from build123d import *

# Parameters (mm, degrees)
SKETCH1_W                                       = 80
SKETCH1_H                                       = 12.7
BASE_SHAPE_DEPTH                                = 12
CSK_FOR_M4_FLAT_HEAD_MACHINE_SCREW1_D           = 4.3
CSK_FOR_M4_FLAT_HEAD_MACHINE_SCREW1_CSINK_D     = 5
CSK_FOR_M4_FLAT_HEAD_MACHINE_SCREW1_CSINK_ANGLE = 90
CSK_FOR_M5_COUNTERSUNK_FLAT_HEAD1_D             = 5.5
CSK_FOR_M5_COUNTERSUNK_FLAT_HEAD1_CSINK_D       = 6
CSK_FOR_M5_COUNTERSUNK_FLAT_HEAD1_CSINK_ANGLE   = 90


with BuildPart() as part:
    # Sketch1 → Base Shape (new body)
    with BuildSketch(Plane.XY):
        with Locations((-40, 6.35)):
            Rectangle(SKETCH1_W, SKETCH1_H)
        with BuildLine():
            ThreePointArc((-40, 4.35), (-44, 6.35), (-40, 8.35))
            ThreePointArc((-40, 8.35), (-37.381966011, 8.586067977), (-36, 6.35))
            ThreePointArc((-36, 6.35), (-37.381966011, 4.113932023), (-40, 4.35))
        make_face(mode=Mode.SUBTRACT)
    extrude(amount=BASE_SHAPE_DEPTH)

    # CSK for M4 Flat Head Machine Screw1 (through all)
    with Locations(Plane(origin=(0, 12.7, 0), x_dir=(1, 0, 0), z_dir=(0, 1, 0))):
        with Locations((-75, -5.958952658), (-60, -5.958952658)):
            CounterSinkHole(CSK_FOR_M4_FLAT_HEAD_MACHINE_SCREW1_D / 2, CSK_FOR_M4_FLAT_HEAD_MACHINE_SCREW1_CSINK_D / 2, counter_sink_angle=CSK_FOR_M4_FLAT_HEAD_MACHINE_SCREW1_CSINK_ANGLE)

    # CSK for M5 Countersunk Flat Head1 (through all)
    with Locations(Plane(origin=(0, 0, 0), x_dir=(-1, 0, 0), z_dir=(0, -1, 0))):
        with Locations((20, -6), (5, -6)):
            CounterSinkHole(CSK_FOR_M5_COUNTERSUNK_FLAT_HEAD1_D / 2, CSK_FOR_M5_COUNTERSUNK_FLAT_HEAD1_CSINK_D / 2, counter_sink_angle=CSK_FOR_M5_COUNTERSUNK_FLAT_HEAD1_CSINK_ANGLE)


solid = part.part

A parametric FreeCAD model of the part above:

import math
import FreeCAD as App
import Part
import Sketcher

V = App.Vector
Q = App.Units.Quantity


def add_polygon(sketch, points):
    """Adds a closed chain of lines whose ends are joined by coincident constraints."""
    first, n = sketch.GeometryCount, len(points)
    for a, b in zip(points, points[1:] + points[:1]):
        sketch.addGeometry(Part.LineSegment(App.Vector(*a, 0), App.Vector(*b, 0)), False)
    for i in range(n):
        sketch.addConstraint(Sketcher.Constraint("Coincident", first + i, 2, first + (i + 1) % n, 1))

doc = App.newDocument("Part")
body = doc.addObject("PartDesign::Body", "Body")

sketch1 = body.newObject("Sketcher::SketchObject", "Sketch")
sketch1.AttachmentSupport = (doc.getObject("XY_Plane"), [""])
sketch1.MapMode = "FlatFace"
add_polygon(sketch1, [(-80, 12.7), (-80, 0), (0, 0), (0, 12.7)])
sketch1.addGeometry(Part.ArcOfCircle(Part.Circle(V(-38.5, 6.4, 0), V(0, 0, 1), 2.5), math.radians(-127), math.radians(0)), False)
sketch1.addGeometry(Part.ArcOfCircle(Part.Circle(V(-41.5, 6.3, 0), V(0, 0, 1), 2.5), math.radians(53), math.radians(307)), False)
sketch1.addGeometry(Part.ArcOfCircle(Part.Circle(V(-38.5, 6.3, 0), V(0, 0, 1), 2.5), math.radians(0), math.radians(127)), False)
sketch1.addConstraint([
    Sketcher.Constraint("Coincident", 4, 1, 5, 2),
    Sketcher.Constraint("Coincident", 5, 1, 6, 2),
    Sketcher.Constraint("Tangent", 6, 1, 4, 2),
    Sketcher.Constraint("Vertical", 0),
    Sketcher.Constraint("Horizontal", 1),
    Sketcher.Constraint("Vertical", 2),
    Sketcher.Constraint("Horizontal", 3),
    Sketcher.Constraint("Coincident", 1, 2, -1, 1),
    Sketcher.Constraint("Equal", 4, 5),
    Sketcher.Constraint("Equal", 5, 6),
    Sketcher.Constraint("Horizontal", 4, 3, 5, 3),
    Sketcher.Constraint("Horizontal", 5, 3, 6, 1),
    Sketcher.Constraint("Radius", 4, Q("2.5 mm")),
    Sketcher.Constraint("DistanceX", 1, 1, 1, 2, Q("80 mm")),
    Sketcher.Constraint("DistanceY", 0, 2, 0, 1, Q("12.7 mm")),
    Sketcher.Constraint("DistanceX", 4, 1, -1, 1, Q("40 mm")),
    Sketcher.Constraint("DistanceX", 6, 1, -1, 1, Q("36 mm")),
    Sketcher.Constraint("DistanceY", -1, 1, 4, 3, Q("6.35 mm")),
])
pad1 = body.newObject("PartDesign::Pad", "Pad")
pad1.Profile = sketch1
pad1.Length = 12

sketch2 = body.newObject("Sketcher::SketchObject", "Sketch001")
sketch2.AttachmentSupport = (doc.getObject("XZ_Plane"), [""])
sketch2.MapMode = "FlatFace"
sketch2.AttachmentOffset = App.Placement(V(0, 0, -12.7), App.Rotation())
sketch2.addGeometry([
    Part.Circle(V(-75, 6, 0), V(0, 0, 1), 2.1),
    Part.Circle(V(-60, 6, 0), V(0, 0, 1), 2.1),
], False)
sketch2.addConstraint([
    Sketcher.Constraint("Equal", 0, 1),
    Sketcher.Constraint("Horizontal", 0, 3, 1, 3),
    Sketcher.Constraint("Diameter", 0, Q("4.3 mm")),
    Sketcher.Constraint("DistanceX", 0, 3, -1, 1, Q("75 mm")),
    Sketcher.Constraint("DistanceX", 1, 3, -1, 1, Q("60 mm")),
    Sketcher.Constraint("DistanceY", -1, 1, 0, 3, Q("5.958953 mm")),
])
doc.recompute()
hole = body.newObject("PartDesign::Hole", "Hole")
hole.Profile = sketch2
hole.ThreadType = "None"
hole.Diameter = 4.3
hole.DepthType = "ThroughAll"
hole.HoleCutType = "Countersink"
hole.HoleCutDiameter = 5
hole.HoleCutCountersinkAngle = 90
hole.Reversed = True

sketch3 = body.newObject("Sketcher::SketchObject", "Sketch002")
sketch3.AttachmentSupport = (doc.getObject("XZ_Plane"), [""])
sketch3.MapMode = "FlatFace"
sketch3.addGeometry([
    Part.Circle(V(-20, 6, 0), V(0, 0, 1), 2.8),
    Part.Circle(V(-5, 6, 0), V(0, 0, 1), 2.8),
], False)
sketch3.addConstraint([
    Sketcher.Constraint("Equal", 0, 1),
    Sketcher.Constraint("Horizontal", 0, 3, 1, 3),
    Sketcher.Constraint("Diameter", 0, Q("5.5 mm")),
    Sketcher.Constraint("DistanceX", 0, 3, -1, 1, Q("20 mm")),
    Sketcher.Constraint("DistanceY", -1, 1, 0, 3, Q("6 mm")),
    Sketcher.Constraint("DistanceX", 1, 3, -1, 1, Q("5 mm")),
])
doc.recompute()
hole2 = body.newObject("PartDesign::Hole", "Hole001")
hole2.Profile = sketch3
hole2.ThreadType = "None"
hole2.Diameter = 5.5
hole2.DepthType = "ThroughAll"
hole2.HoleCutType = "Countersink"
hole2.HoleCutDiameter = 6
hole2.HoleCutCountersinkAngle = 90

doc.recompute()
